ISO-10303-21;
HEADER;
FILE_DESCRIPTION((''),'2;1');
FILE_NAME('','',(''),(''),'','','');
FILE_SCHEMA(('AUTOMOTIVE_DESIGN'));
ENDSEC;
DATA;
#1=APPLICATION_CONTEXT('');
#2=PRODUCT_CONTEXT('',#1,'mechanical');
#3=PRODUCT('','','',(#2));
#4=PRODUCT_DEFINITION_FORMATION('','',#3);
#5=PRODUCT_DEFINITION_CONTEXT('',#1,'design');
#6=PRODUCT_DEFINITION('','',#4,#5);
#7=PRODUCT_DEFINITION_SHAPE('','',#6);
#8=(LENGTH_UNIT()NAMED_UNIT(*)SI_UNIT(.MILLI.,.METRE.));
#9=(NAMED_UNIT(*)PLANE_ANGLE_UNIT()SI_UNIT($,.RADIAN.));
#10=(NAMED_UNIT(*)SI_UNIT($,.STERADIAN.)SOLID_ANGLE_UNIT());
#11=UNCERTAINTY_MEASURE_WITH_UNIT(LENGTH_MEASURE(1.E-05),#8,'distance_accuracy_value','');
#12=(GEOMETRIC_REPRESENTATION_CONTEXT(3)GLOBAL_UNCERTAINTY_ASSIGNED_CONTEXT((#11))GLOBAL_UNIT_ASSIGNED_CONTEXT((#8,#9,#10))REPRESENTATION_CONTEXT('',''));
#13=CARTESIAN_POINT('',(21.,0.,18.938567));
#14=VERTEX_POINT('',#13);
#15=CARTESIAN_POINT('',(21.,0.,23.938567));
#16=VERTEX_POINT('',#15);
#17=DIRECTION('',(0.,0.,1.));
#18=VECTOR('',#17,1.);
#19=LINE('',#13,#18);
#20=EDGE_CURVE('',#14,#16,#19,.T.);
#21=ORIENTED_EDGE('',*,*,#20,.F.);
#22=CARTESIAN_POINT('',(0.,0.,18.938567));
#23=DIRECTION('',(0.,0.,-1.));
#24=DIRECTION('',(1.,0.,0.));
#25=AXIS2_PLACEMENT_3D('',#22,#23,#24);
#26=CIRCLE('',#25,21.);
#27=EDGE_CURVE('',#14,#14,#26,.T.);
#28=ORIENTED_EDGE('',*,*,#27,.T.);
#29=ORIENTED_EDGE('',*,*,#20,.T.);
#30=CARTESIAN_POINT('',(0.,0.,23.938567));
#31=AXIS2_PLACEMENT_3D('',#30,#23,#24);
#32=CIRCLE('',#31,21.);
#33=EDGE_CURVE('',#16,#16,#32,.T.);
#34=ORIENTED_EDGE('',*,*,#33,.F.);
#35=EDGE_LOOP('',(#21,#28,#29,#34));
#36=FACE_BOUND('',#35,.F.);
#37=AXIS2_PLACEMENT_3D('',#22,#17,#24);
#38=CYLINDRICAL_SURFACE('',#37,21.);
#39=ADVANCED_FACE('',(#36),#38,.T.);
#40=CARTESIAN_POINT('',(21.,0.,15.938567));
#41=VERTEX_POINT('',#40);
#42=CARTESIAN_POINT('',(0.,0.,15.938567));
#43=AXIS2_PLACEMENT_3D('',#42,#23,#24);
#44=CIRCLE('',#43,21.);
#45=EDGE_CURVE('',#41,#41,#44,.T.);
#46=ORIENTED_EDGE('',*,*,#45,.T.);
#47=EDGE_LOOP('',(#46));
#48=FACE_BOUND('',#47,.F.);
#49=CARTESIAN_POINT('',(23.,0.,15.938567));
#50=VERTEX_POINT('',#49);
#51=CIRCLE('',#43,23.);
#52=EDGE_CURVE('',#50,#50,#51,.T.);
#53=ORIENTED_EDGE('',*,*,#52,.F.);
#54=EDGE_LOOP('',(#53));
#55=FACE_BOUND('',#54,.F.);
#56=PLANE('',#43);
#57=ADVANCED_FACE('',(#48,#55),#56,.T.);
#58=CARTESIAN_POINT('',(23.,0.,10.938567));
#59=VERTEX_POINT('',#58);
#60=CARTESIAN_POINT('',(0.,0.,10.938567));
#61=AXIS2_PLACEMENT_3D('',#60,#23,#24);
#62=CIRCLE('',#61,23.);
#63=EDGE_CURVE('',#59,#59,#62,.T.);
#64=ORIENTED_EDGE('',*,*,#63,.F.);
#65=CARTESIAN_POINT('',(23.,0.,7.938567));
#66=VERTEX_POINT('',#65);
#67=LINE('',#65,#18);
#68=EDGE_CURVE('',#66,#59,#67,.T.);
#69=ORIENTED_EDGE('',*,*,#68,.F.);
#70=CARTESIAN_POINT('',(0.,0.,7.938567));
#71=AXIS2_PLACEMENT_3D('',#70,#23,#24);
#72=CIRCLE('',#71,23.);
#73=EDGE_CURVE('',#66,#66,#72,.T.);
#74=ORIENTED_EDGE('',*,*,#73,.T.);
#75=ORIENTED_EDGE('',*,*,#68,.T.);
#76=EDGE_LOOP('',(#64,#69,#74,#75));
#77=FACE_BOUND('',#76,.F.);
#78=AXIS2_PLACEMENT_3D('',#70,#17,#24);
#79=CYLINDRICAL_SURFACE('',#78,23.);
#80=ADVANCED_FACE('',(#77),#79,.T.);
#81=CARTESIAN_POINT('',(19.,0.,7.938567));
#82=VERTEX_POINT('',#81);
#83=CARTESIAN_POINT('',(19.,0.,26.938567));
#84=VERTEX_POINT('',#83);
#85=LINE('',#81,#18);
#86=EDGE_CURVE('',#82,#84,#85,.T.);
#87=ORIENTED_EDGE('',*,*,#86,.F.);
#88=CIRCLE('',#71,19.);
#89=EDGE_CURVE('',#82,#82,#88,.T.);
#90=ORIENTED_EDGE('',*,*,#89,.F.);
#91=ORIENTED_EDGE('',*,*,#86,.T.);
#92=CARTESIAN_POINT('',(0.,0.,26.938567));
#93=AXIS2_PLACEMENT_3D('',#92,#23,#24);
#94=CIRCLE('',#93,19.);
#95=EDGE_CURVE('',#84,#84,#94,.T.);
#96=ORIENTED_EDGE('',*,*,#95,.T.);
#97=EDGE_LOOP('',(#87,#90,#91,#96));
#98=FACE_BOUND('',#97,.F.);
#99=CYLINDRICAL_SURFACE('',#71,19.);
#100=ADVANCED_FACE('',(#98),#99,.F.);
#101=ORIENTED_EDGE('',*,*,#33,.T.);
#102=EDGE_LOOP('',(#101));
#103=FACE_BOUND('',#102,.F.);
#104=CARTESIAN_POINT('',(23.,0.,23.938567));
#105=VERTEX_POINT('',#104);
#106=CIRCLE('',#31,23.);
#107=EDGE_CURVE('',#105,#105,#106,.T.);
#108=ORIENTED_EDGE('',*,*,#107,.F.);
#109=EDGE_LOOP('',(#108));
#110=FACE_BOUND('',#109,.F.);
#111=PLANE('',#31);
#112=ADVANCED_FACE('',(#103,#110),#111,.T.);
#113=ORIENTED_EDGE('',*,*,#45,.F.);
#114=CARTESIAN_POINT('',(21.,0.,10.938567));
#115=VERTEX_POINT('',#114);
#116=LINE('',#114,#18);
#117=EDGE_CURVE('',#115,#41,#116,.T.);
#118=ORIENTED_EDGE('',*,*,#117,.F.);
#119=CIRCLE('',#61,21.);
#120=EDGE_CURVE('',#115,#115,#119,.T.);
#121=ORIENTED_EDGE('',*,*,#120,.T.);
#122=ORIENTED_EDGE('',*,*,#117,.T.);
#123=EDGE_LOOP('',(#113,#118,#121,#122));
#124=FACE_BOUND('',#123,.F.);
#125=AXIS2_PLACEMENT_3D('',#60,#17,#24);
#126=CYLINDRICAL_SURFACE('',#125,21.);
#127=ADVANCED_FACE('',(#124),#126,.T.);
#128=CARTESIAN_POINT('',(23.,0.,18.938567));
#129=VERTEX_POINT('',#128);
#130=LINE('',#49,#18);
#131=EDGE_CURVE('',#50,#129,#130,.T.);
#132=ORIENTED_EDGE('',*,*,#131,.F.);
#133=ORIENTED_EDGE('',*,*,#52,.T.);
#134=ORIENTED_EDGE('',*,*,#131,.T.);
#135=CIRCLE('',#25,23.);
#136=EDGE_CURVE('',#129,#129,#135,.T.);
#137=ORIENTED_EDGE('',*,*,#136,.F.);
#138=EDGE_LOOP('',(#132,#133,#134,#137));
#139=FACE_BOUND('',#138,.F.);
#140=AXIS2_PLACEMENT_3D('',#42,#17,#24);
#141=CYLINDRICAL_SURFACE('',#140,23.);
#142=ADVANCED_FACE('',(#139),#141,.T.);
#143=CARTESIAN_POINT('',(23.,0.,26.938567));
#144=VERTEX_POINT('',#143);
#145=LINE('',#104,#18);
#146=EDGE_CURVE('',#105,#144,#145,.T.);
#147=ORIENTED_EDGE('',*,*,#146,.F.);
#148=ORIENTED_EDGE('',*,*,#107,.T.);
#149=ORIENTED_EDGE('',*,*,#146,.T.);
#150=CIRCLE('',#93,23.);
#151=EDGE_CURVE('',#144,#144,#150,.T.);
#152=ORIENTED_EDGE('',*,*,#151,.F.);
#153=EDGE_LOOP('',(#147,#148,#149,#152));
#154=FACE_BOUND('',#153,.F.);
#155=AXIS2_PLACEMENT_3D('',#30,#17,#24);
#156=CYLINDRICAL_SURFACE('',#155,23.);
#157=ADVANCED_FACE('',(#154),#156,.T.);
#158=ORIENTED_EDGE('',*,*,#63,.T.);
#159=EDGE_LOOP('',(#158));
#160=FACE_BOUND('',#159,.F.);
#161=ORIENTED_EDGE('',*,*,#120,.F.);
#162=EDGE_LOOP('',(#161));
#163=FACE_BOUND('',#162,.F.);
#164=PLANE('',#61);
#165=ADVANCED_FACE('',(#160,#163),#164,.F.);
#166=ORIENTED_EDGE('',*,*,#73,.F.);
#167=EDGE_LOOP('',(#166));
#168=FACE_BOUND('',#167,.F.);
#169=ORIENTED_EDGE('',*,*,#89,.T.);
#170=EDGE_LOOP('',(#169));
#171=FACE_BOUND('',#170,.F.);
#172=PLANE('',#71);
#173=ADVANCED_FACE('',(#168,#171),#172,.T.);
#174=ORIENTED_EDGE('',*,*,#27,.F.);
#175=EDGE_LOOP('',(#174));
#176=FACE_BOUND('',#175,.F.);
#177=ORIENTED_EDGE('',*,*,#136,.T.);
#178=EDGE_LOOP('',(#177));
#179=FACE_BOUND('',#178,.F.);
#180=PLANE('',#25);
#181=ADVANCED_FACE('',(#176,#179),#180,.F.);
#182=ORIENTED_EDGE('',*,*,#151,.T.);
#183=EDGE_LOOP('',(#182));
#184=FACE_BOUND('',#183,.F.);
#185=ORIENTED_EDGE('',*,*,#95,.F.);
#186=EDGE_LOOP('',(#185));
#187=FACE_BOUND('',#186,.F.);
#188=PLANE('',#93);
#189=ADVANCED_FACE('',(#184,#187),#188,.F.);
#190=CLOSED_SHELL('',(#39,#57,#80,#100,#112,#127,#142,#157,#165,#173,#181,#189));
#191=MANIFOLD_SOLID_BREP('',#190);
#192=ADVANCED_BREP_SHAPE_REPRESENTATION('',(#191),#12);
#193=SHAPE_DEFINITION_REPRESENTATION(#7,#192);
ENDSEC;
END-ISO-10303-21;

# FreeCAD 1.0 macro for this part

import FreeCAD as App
import Part
import Sketcher
from FreeCAD import Vector
Q = App.Units.Quantity


def add_polygon(sketch, points):
    """Adds a closed chain of lines whose ends are joined by coincident constraints."""
    first, n = sketch.GeometryCount, len(points)
    for a, b in zip(points, points[1:] + points[:1]):
        sketch.addGeometry(Part.LineSegment(App.Vector(*a, 0), App.Vector(*b, 0)), False)
    for i in range(n):
        sketch.addConstraint(Sketcher.Constraint("Coincident", first + i, 2, first + (i + 1) % n, 1))

doc = App.newDocument("Part")
body = doc.addObject("PartDesign::Body", "Body")

sketch1 = doc.addObject("Sketcher::SketchObject", "Sketch")
body.addObject(sketch1)
sketch1.AttachmentSupport = (doc.XZ_Plane, [""])
sketch1.MapMode = "FlatFace"
add_polygon(sketch1, [(23, 26.9), (0, 26.9), (0, 7.9), (23, 7.9), (23, 10.9), (21, 10.9), (21, 15.9), (23, 15.9), (23, 18.9), (21, 18.9), (21, 23.9), (23, 23.9)])
sketch1.addConstraint([
    Sketcher.Constraint("Horizontal", 0),
    Sketcher.Constraint("Vertical", 1),
    Sketcher.Constraint("Horizontal", 2),
    Sketcher.Constraint("Vertical", 3),
    Sketcher.Constraint("Horizontal", 4),
    Sketcher.Constraint("Vertical", 5),
    Sketcher.Constraint("Horizontal", 6),
    Sketcher.Constraint("Vertical", 7),
    Sketcher.Constraint("Horizontal", 8),
    Sketcher.Constraint("Vertical", 9),
    Sketcher.Constraint("Horizontal", 10),
    Sketcher.Constraint("Vertical", 11),
    Sketcher.Constraint("PointOnObject", 0, 2, -2),
    Sketcher.Constraint("Vertical", 3, 2, 6, 2),
    Sketcher.Constraint("Vertical", 5, 2, 8, 2),
    Sketcher.Constraint("Vertical", 7, 2, 10, 2),
    Sketcher.Constraint("Equal", 3, 7),
    Sketcher.Constraint("Equal", 5, 9),
    Sketcher.Constraint("Equal", 7, 11),
    Sketcher.Constraint("DistanceX", 0, 2, 0, 1, Q("23 mm")),
    Sketcher.Constraint("DistanceX", 4, 2, 4, 1, Q("2 mm")),
    Sketcher.Constraint("DistanceY", 1, 2, 1, 1, Q("19 mm")),
    Sketcher.Constraint("DistanceY", 3, 1, 3, 2, Q("3 mm")),
    Sketcher.Constraint("DistanceY", -1, 1, 0, 2, Q("26.938567 mm")),
])
revolution = doc.addObject("PartDesign::Revolution", "Revolution")
body.addObject(revolution)
revolution.Profile = sketch1
revolution.ReferenceAxis = (sketch1, ["V_Axis"])
revolution.Angle = 360

sketch2 = doc.addObject("Sketcher::SketchObject", "Sketch001")
body.addObject(sketch2)
sketch2.AttachmentSupport = (doc.XY_Plane, [""])
sketch2.MapMode = "FlatFace"
sketch2.AttachmentOffset = App.Placement(Vector(0, 0, 7.938567), App.Rotation())
sketch2.addGeometry(Part.Circle(Vector(0, 0, 0), Vector(0, 0, 1), 19), False)
sketch2.addConstraint([
    Sketcher.Constraint("Coincident", 0, 3, -1, 1),
    Sketcher.Constraint("Diameter", 0, Q("38 mm")),
])
pocket1 = doc.addObject("PartDesign::Pocket", "Pocket")
body.addObject(pocket1)
pocket1.Profile = sketch2
pocket1.Length = 23
pocket1.Reversed = True

doc.recompute()
